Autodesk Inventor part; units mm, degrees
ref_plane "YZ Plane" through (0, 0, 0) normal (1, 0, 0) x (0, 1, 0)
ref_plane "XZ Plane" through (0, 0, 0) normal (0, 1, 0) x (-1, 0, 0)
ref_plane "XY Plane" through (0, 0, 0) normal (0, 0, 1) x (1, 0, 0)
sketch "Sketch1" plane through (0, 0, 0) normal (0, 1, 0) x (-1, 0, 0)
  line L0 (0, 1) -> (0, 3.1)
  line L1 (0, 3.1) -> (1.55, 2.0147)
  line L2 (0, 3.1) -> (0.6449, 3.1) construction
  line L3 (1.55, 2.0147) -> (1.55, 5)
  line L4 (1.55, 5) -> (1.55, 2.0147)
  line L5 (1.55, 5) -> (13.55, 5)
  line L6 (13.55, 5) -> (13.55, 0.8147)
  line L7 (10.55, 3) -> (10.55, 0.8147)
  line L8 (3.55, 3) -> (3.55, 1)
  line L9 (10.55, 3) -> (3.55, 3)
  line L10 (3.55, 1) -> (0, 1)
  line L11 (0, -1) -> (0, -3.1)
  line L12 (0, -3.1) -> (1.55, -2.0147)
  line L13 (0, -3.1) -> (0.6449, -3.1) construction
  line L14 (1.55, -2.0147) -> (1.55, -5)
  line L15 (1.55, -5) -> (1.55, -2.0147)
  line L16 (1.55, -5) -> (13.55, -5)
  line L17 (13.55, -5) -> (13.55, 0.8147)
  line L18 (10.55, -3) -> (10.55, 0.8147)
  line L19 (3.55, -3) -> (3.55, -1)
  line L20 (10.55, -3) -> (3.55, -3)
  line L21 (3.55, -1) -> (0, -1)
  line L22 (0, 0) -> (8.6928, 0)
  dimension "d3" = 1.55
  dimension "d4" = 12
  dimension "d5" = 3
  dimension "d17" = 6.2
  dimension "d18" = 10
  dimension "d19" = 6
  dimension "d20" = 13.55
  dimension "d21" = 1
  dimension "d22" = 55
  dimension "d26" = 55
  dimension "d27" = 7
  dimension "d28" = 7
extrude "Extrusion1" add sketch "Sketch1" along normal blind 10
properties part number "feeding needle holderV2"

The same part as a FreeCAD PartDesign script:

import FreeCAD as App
import Part
import Sketcher
from FreeCAD import Vector
Q = App.Units.Quantity

doc = App.newDocument("Part")
body = doc.addObject("PartDesign::Body", "Body")

sketch1 = body.newObject("Sketcher::SketchObject", "Sketch")
sketch1.AttachmentSupport = (doc.getObject("XZ_Plane"), [""])
sketch1.MapMode = "FlatFace"
sketch1.addGeometry([
    Part.LineSegment(Vector(0, 3.1, 0), Vector(0, 1, 0)),
    Part.LineSegment(Vector(0, 1, 0), Vector(-3.5, 1, 0)),
    Part.LineSegment(Vector(-3.5, 1, 0), Vector(-3.5, 3, 0)),
    Part.LineSegment(Vector(-3.5, 3, 0), Vector(-10.6, 3, 0)),
    Part.LineSegment(Vector(-10.6, 3, 0), Vector(-10.6, -3, 0)),
    Part.LineSegment(Vector(-10.6, -3, 0), Vector(-3.5, -3, 0)),
    Part.LineSegment(Vector(-3.5, -3, 0), Vector(-3.5, -1, 0)),
    Part.LineSegment(Vector(-3.5, -1, 0), Vector(0, -1, 0)),
    Part.LineSegment(Vector(0, -1, 0), Vector(0, -3.1, 0)),
    Part.LineSegment(Vector(0, -3.1, 0), Vector(-1.6, -2, 0)),
    Part.LineSegment(Vector(-1.6, -2, 0), Vector(-1.6, -5, 0)),
    Part.LineSegment(Vector(-1.6, -5, 0), Vector(-13.6, -5, 0)),
    Part.LineSegment(Vector(-13.6, -5, 0), Vector(-13.6, 5, 0)),
    Part.LineSegment(Vector(-13.6, 5, 0), Vector(-1.6, 5, 0)),
    Part.LineSegment(Vector(-1.6, 5, 0), Vector(-1.6, 2, 0)),
    Part.LineSegment(Vector(-1.6, 2, 0), Vector(0, 3.1, 0)),
], False)
sketch1.addConstraint([
    Sketcher.Constraint("Coincident", 0, 2, 1, 1),
    Sketcher.Constraint("Coincident", 1, 2, 2, 1),
    Sketcher.Constraint("Coincident", 2, 2, 3, 1),
    Sketcher.Constraint("Coincident", 3, 2, 4, 1),
    Sketcher.Constraint("Coincident", 4, 2, 5, 1),
    Sketcher.Constraint("Coincident", 5, 2, 6, 1),
    Sketcher.Constraint("Coincident", 6, 2, 7, 1),
    Sketcher.Constraint("Coincident", 7, 2, 8, 1),
    Sketcher.Constraint("Coincident", 8, 2, 9, 1),
    Sketcher.Constraint("Coincident", 9, 2, 10, 1),
    Sketcher.Constraint("Coincident", 10, 2, 11, 1),
    Sketcher.Constraint("Coincident", 11, 2, 12, 1),
    Sketcher.Constraint("Coincident", 12, 2, 13, 1),
    Sketcher.Constraint("Coincident", 13, 2, 14, 1),
    Sketcher.Constraint("Coincident", 14, 2, 15, 1),
    Sketcher.Constraint("Coincident", 15, 2, 0, 1),
    Sketcher.Constraint("Vertical", 0),
    Sketcher.Constraint("Horizontal", 1),
    Sketcher.Constraint("Vertical", 2),
    Sketcher.Constraint("Horizontal", 3),
    Sketcher.Constraint("Vertical", 4),
    Sketcher.Constraint("Horizontal", 5),
    Sketcher.Constraint("Vertical", 6),
    Sketcher.Constraint("Horizontal", 7),
    Sketcher.Constraint("Vertical", 8),
    Sketcher.Constraint("Vertical", 10),
    Sketcher.Constraint("Horizontal", 11),
    Sketcher.Constraint("Vertical", 12),
    Sketcher.Constraint("Horizontal", 13),
    Sketcher.Constraint("Vertical", 14),
    Sketcher.Constraint("Symmetric", 0, 2, 7, 2, -1, 1),
    Sketcher.Constraint("Symmetric", 2, 2, 5, 2, -1),
    Sketcher.Constraint("Symmetric", 10, 2, 13, 2, -1),
    Sketcher.Constraint("Symmetric", 8, 2, 15, 2, -1),
    Sketcher.Constraint("Equal", 10, 14),
    Sketcher.Constraint("DistanceX", 3, 2, 3, 1, Q("7 mm")),
    Sketcher.Constraint("DistanceX", 11, 2, 11, 1, Q("12 mm")),
    Sketcher.Constraint("DistanceY", 4, 2, 4, 1, Q("6 mm")),
    Sketcher.Constraint("DistanceY", 12, 1, 12, 2, Q("10 mm")),
    Sketcher.Constraint("DistanceY", -1, 1, 0, 2, Q("1 mm")),
    Sketcher.Constraint("DistanceX", 11, 2, 4, 2, Q("3 mm")),
    Sketcher.Constraint("DistanceX", 9, 2, -1, 1, Q("1.55 mm")),
    Sketcher.Constraint("Angle", 9, Q("145.0005 deg")),
    Sketcher.Constraint("DistanceY", 0, 2, 0, 1, Q("2.1 mm")),
])
pad1 = body.newObject("PartDesign::Pad", "Pad")
pad1.Profile = sketch1
pad1.Length = 10
pad1.Reversed = True

doc.recompute()
